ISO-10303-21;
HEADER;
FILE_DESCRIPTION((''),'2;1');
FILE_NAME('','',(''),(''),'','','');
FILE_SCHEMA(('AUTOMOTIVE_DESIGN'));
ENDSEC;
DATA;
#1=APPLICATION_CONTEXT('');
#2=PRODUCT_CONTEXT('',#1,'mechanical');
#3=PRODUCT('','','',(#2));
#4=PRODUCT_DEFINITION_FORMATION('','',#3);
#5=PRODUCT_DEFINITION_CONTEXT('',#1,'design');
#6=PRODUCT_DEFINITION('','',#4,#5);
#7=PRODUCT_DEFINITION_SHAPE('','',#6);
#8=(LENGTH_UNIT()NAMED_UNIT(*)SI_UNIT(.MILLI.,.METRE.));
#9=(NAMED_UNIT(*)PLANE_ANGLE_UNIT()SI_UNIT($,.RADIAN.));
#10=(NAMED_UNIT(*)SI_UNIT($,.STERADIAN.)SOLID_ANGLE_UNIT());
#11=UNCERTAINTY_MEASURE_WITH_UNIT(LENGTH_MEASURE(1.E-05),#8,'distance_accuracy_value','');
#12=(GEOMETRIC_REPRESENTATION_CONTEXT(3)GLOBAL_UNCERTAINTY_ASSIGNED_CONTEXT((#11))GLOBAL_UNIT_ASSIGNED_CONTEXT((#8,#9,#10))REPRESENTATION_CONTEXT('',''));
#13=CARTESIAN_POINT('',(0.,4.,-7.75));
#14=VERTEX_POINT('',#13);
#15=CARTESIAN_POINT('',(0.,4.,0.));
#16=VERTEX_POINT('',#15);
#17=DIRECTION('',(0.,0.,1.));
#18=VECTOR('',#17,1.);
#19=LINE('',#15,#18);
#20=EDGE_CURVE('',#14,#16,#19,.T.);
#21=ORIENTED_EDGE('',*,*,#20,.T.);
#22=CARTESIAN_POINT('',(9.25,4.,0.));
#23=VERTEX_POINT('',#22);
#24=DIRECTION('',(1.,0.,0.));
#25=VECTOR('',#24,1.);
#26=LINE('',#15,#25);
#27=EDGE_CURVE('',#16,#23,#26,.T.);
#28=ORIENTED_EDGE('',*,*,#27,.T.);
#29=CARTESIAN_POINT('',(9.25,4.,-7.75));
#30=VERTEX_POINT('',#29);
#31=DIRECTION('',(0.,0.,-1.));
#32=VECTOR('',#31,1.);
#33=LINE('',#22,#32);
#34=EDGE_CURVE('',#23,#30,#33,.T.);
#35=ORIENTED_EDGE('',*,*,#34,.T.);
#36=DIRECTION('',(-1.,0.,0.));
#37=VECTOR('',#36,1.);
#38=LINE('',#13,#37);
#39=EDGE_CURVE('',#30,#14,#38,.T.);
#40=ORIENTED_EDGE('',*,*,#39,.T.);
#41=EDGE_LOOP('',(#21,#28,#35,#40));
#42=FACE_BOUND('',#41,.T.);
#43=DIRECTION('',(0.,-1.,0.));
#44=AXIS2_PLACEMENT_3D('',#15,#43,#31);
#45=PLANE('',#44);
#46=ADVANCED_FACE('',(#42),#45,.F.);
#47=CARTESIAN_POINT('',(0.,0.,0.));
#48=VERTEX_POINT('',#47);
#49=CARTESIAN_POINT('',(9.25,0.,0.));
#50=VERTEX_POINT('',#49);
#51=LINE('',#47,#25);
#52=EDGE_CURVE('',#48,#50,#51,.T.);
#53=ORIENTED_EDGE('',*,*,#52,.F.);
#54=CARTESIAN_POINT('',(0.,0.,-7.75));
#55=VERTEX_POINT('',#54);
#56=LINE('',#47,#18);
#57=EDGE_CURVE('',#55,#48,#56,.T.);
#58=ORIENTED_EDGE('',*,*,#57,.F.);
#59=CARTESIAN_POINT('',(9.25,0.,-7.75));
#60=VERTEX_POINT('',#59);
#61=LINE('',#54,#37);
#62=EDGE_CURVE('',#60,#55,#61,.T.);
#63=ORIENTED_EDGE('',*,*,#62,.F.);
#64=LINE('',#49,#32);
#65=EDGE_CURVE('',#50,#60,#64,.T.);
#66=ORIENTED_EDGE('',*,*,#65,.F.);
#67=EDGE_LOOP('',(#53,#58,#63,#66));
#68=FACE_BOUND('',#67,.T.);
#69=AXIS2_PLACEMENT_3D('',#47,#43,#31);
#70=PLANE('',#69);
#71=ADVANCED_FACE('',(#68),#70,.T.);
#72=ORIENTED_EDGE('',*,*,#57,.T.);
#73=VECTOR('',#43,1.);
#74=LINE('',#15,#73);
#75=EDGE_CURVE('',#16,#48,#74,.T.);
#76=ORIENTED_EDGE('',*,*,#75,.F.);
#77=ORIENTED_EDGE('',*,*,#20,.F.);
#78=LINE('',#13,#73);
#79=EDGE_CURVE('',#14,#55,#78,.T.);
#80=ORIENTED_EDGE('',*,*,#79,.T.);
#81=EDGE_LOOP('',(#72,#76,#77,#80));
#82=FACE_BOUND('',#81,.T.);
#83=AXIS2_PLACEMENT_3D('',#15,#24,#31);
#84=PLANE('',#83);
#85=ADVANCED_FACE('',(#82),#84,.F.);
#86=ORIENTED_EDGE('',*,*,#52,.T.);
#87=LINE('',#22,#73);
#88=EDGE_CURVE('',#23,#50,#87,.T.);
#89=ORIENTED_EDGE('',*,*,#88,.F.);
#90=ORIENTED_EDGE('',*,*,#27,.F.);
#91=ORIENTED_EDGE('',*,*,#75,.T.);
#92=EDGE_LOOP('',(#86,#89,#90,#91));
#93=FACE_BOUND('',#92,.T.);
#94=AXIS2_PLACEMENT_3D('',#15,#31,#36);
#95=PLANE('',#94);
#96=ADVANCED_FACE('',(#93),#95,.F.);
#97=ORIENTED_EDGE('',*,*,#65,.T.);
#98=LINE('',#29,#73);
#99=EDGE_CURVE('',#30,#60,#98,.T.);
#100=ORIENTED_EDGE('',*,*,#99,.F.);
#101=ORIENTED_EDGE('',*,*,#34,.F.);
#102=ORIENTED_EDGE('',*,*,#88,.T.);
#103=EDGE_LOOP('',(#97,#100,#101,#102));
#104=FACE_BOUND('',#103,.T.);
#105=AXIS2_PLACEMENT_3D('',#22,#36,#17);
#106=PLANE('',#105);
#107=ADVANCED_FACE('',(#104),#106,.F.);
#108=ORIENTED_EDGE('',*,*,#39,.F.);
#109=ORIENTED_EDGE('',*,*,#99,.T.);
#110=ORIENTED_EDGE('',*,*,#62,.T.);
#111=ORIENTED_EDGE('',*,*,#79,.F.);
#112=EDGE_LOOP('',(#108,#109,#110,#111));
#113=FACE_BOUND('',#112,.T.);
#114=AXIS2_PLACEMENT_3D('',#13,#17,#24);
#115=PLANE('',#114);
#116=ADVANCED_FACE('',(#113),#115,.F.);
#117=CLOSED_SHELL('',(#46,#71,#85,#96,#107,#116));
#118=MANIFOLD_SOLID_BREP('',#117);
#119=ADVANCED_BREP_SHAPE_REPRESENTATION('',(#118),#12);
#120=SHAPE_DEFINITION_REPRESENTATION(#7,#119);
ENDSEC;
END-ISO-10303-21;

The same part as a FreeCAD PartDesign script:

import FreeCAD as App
import Part
import Sketcher
from FreeCAD import Vector
Q = App.Units.Quantity

doc = App.newDocument("Part")
body = doc.addObject("PartDesign::Body", "Body")

# Sketch on XZ plane
sketch1 = doc.addObject("Sketcher::SketchObject", "Sketch")
body.addObject(sketch1)
sketch1.AttachmentSupport = (doc.XZ_Plane, [""])
sketch1.MapMode = "FlatFace"
sketch1.addGeometry(Part.LineSegment(Vector(0, -8, 0), Vector(0, 0, 0)), False)
sketch1.addGeometry(Part.LineSegment(Vector(0, 0, 0), Vector(9, 0, 0)), False)
sketch1.addGeometry(Part.LineSegment(Vector(9, 0, 0), Vector(9, -8, 0)), False)
sketch1.addGeometry(Part.LineSegment(Vector(9, -8, 0), Vector(0, -8, 0)), False)
sketch1.addConstraint(Sketcher.Constraint("Coincident", 0, 2, 1, 1))
sketch1.addConstraint(Sketcher.Constraint("Coincident", 1, 2, 2, 1))
sketch1.addConstraint(Sketcher.Constraint("Coincident", 2, 2, 3, 1))
sketch1.addConstraint(Sketcher.Constraint("Coincident", 3, 2, 0, 1))
sketch1.addConstraint(Sketcher.Constraint("Vertical", 0))
sketch1.addConstraint(Sketcher.Constraint("Horizontal", 1))
sketch1.addConstraint(Sketcher.Constraint("Vertical", 2))
sketch1.addConstraint(Sketcher.Constraint("Horizontal", 3))
sketch1.addConstraint(Sketcher.Constraint("Coincident", 0, 2, -1, 1))
sketch1.addConstraint(Sketcher.Constraint("DistanceX", 1, 1, 1, 2, Q("9.25 mm")))
sketch1.addConstraint(Sketcher.Constraint("DistanceY", 0, 1, 0, 2, Q("7.75 mm")))
pad1 = doc.addObject("PartDesign::Pad", "Pad")
body.addObject(pad1)
pad1.Profile = sketch1
pad1.Length = 4
pad1.Reversed = True

doc.recompute()
